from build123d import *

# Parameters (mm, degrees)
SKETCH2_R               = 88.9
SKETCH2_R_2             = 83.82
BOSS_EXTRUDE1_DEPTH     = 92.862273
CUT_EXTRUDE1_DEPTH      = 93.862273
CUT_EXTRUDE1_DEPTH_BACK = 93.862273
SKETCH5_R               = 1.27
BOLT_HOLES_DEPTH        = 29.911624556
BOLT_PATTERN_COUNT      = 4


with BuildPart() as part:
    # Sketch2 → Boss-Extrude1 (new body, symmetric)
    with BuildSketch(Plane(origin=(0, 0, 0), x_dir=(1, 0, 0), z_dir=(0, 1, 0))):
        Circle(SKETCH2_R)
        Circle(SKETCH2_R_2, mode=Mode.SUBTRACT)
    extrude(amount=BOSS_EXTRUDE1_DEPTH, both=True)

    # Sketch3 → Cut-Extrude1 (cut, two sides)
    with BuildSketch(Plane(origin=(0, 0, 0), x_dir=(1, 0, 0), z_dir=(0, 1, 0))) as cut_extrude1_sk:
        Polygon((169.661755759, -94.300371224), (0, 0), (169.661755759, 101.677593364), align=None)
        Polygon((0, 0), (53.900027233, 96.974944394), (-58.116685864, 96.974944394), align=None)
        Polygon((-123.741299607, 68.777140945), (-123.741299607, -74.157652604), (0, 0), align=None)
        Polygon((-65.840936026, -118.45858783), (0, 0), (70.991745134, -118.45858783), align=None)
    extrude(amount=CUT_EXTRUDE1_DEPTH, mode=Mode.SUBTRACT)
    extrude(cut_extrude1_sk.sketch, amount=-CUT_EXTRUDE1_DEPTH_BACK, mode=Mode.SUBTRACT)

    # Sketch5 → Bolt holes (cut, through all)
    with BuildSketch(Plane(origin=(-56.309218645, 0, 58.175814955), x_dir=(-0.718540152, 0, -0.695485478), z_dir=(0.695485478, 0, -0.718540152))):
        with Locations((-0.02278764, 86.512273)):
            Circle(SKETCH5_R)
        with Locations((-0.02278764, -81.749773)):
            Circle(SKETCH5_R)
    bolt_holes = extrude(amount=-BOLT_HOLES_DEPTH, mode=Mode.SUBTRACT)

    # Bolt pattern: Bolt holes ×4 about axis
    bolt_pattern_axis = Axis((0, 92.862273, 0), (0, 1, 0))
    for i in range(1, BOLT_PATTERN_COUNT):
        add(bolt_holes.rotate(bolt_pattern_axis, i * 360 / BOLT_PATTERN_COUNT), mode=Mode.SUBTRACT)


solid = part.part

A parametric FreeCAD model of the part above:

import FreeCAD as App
import Part
import Sketcher
Q = App.Units.Quantity


def add_polygon(sketch, points):
    """Adds a closed chain of lines whose ends are joined by coincident constraints."""
    first, n = sketch.GeometryCount, len(points)
    for a, b in zip(points, points[1:] + points[:1]):
        sketch.addGeometry(Part.LineSegment(App.Vector(*a, 0), App.Vector(*b, 0)), False)
    for i in range(n):
        sketch.addConstraint(Sketcher.Constraint("Coincident", first + i, 2, first + (i + 1) % n, 1))

doc = App.newDocument("Part")
body = doc.addObject("PartDesign::Body", "Body")
body.AllowCompound = True

# Sketch on XZ plane
sketch1 = body.newObject("Sketcher::SketchObject", "Sketch")
sketch1.AttachmentSupport = (doc.getObject("XZ_Plane"), [""])
sketch1.MapMode = "FlatFace"
sketch1.addGeometry(Part.Circle(App.Vector(0, 0, 0), App.Vector(0, 0, 1), 88.9), False)
sketch1.addGeometry(Part.Circle(App.Vector(0, 0, 0), App.Vector(0, 0, 1), 83.82), False)
sketch1.addConstraint(Sketcher.Constraint("Coincident", 0, 3, -1, 1))
sketch1.addConstraint(Sketcher.Constraint("Coincident", 1, 3, -1, 1))
sketch1.addConstraint(Sketcher.Constraint("Diameter", 0, Q("7 in")))
sketch1.addConstraint(Sketcher.Constraint("Diameter", 1, Q("6.6 in")))
pad1 = body.newObject("PartDesign::Pad", "Pad")
pad1.Profile = sketch1
pad1.Length = 185.724546
pad1.Midplane = True

# Sketch on XZ plane
sketch2 = body.newObject("Sketcher::SketchObject", "Sketch001")
sketch2.AttachmentSupport = (doc.getObject("XZ_Plane"), [""])
sketch2.MapMode = "FlatFace"
add_polygon(sketch2, [(0, 0), (169.661756, 94.300371), (169.661756, -101.677593)])  # lines 0-2
add_polygon(sketch2, [(0, 0), (53.900027, -96.974944), (-58.116686, -96.974944)])  # lines 3-5
add_polygon(sketch2, [(-123.7413, -68.777141), (-123.7413, 74.157653), (0, 0)])  # lines 6-8
add_polygon(sketch2, [(0, 0), (-65.840936, 118.458588), (70.991745, 118.458588)])  # lines 9-11
sketch2.addConstraint(Sketcher.Constraint("Vertical", 1))
sketch2.addConstraint(Sketcher.Constraint("Horizontal", 4))
sketch2.addConstraint(Sketcher.Constraint("Vertical", 6))
sketch2.addConstraint(Sketcher.Constraint("Horizontal", 10))
sketch2.addConstraint(Sketcher.Constraint("Coincident", 2, 2, -1, 1))
sketch2.addConstraint(Sketcher.Constraint("Coincident", 5, 2, -1, 1))
sketch2.addConstraint(Sketcher.Constraint("Coincident", 7, 2, -1, 1))
sketch2.addConstraint(Sketcher.Constraint("Coincident", 11, 2, -1, 1))
sketch2.addConstraint(Sketcher.Constraint("Perpendicular", 0, 3))
sketch2.addConstraint(Sketcher.Constraint("Perpendicular", 2, 5))
sketch2.addConstraint(Sketcher.Constraint("Perpendicular", 5, 7))
sketch2.addConstraint(Sketcher.Constraint("Perpendicular", 3, 8))
sketch2.addConstraint(Sketcher.Constraint("Perpendicular", 8, 9))
sketch2.addConstraint(Sketcher.Constraint("Perpendicular", 7, 11))
sketch2.addConstraint(Sketcher.Constraint("DistanceX", 10, 1, 10, 2, 136.832681))
sketch2.addConstraint(Sketcher.Constraint("DistanceX", 6, 2, -1, 1, 123.7413))
sketch2.addConstraint(Sketcher.Constraint("Distance", 0, 194.107371))
sketch2.addConstraint(Sketcher.Constraint("Distance", 11, 138.102371))
sketch2.addConstraint(Sketcher.Constraint("DistanceX", 4, 2, 4, 1, 112.016713))
sketch2.addConstraint(Sketcher.Constraint("DistanceY", 1, 2, 1, 1, 195.977965))
pocket1 = body.newObject("PartDesign::Pocket", "Pocket")
pocket1.Profile = sketch2
pocket1.Type = "ThroughAll"
pocket1.Midplane = True

# Sketch on an angled plane
sketch3 = body.newObject("Sketcher::SketchObject", "Sketch002")
sketch3.Placement = App.Placement(App.Vector(-56.309219, 0, 58.175815), App.Rotation(App.Vector(-0.718540152, 0, -0.695485478), App.Vector(0, 1, 0), App.Vector(0.695485478, 0, -0.718540152), "ZXY"))
sketch3.addGeometry(Part.Circle(App.Vector(-0.022788, 86.512273, 0), App.Vector(0, 0, 1), 1.27), False)
sketch3.addGeometry(Part.Circle(App.Vector(-0.022788, -81.749773, 0), App.Vector(0, 0, 1), 1.27), False)
sketch3.addConstraint(Sketcher.Constraint("Equal", 0, 1))
sketch3.addConstraint(Sketcher.Constraint("Vertical", 0, 3, 1, 3))
sketch3.addConstraint(Sketcher.Constraint("Diameter", 0, Q("0.1 in")))
sketch3.addConstraint(Sketcher.Constraint("DistanceX", 0, 3, -1, 1, 0.022788))
sketch3.addConstraint(Sketcher.Constraint("DistanceY", -1, 1, 0, 3, 86.512273))
sketch3.addConstraint(Sketcher.Constraint("DistanceY", 1, 3, -1, 1, 81.749773))
pocket2 = body.newObject("PartDesign::Pocket", "Pocket001")
pocket2.Profile = sketch3
pocket2.Type = "ThroughAll"
doc.recompute()

polarpattern = body.newObject("PartDesign::PolarPattern", "PolarPattern")
polarpattern.Originals = [pocket2]
polarpattern.Axis = (doc.getObject("Y_Axis"), [""])
polarpattern.Angle = 360
polarpattern.Occurrences = 4
body.Tip = polarpattern

doc.recompute()
